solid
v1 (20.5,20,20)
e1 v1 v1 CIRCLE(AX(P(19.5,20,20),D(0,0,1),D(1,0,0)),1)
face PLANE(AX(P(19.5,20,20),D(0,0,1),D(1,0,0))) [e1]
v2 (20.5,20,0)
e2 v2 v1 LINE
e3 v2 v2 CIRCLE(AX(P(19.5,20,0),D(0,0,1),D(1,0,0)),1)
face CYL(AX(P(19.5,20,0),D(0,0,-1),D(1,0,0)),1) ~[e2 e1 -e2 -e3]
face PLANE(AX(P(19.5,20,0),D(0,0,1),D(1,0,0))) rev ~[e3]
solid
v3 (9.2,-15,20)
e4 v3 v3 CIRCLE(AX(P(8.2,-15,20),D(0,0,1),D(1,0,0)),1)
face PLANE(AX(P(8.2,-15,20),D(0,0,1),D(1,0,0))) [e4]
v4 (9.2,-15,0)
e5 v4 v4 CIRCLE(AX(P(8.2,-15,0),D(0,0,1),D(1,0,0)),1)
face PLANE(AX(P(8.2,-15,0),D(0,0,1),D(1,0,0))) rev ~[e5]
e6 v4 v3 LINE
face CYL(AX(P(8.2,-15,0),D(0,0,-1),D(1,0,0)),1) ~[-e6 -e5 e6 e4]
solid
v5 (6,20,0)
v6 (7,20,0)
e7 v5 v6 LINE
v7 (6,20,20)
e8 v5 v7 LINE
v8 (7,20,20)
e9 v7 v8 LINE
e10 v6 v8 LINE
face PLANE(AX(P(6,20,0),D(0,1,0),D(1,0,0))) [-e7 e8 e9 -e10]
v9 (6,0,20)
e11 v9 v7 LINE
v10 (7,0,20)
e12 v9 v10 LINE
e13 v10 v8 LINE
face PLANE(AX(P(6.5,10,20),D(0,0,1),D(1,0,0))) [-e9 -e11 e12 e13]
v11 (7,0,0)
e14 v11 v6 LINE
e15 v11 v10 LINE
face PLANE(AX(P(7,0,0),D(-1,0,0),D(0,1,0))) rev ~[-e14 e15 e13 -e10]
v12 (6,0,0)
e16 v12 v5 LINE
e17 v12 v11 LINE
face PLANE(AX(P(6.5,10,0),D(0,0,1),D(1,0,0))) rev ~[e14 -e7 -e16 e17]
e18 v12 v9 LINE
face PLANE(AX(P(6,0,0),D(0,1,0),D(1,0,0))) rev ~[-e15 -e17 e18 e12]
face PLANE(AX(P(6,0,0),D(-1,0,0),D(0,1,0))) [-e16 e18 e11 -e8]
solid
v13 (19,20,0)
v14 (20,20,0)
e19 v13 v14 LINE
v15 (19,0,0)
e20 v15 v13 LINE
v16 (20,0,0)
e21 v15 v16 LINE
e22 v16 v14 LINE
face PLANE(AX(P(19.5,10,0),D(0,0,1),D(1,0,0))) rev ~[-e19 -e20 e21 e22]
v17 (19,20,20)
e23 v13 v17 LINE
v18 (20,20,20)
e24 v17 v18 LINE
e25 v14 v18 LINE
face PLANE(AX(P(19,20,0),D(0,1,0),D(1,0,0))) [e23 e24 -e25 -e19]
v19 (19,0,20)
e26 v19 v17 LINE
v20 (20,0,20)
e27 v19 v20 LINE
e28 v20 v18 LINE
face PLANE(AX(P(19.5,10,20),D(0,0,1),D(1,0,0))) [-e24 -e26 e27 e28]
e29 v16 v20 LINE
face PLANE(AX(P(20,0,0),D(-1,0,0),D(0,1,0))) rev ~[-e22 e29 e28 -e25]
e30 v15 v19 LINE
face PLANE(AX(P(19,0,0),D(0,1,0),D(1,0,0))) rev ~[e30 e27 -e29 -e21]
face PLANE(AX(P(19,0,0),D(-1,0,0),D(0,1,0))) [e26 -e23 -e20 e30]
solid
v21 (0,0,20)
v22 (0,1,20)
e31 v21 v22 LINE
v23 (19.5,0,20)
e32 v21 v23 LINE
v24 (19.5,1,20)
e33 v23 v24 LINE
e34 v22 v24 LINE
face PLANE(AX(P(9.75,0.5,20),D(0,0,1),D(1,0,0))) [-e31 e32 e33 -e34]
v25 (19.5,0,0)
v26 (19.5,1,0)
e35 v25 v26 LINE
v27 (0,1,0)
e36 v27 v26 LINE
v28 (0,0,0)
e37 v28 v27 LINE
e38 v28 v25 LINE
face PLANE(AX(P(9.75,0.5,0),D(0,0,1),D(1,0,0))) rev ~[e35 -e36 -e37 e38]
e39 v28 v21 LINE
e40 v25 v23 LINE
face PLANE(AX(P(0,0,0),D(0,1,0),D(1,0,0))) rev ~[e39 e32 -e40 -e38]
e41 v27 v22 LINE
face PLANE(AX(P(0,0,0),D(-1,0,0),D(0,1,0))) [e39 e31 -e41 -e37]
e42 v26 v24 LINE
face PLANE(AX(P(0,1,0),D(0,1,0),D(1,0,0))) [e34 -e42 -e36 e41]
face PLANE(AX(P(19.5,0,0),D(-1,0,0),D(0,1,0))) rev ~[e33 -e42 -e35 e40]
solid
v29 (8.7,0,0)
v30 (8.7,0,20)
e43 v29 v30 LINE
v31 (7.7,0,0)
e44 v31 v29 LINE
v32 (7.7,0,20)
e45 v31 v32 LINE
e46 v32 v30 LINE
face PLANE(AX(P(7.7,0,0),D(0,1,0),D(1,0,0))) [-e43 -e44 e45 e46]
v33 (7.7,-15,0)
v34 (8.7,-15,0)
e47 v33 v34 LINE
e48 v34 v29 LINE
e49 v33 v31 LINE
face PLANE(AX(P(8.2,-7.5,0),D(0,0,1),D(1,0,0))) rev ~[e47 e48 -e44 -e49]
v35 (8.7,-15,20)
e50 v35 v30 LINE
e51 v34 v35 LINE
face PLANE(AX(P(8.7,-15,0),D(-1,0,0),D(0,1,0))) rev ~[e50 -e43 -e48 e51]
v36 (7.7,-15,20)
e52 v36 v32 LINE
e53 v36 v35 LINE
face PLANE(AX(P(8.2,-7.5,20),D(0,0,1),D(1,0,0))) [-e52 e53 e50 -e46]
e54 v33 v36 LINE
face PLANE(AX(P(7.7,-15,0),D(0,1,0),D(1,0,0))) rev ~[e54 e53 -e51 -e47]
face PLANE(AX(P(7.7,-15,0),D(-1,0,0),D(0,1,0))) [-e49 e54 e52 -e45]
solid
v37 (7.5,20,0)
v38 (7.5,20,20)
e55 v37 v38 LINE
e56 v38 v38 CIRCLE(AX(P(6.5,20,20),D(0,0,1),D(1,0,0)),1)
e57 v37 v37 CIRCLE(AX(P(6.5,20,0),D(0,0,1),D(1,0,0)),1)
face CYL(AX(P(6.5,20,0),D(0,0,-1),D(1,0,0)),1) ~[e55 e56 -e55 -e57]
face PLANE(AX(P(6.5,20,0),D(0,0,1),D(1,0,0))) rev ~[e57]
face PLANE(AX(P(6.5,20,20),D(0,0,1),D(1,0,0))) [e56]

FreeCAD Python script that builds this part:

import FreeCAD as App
import Part
import Sketcher

doc = App.newDocument("Part")
params = doc.addObject("Spreadsheet::Sheet", "Params")
for row, (alias, value) in enumerate([
    ("sketch1_height", "1 mm"),
    ("sketch1_width", "19.5 mm"),
    ("pad1_length", "20 mm"),
    ("sketch2_width", "1 mm"),
    ("sketch2_height", "20 mm"),
    ("pad2_length", "20 mm"),
    ("sketch3_width", "1 mm"),
    ("sketch3_height", "20 mm"),
    ("pad3_length", "20 mm"),
    ("sketch4_diameter", "2 mm"),
    ("pad4_length", "20 mm"),
    ("sketch5_diameter", "2 mm"),
    ("pad5_length", "20 mm"),
    ("sketch6_width", "1 mm"),
    ("sketch6_height", "15 mm"),
    ("pad6_length", "20 mm"),
    ("sketch7_diameter", "2 mm"),
    ("pad7_length", "20 mm"),
], start=1):
    params.set(f"A{row}", alias)
    params.set(f"B{row}", "=" + value)
    params.setAlias(f"B{row}", alias)

body = doc.addObject("PartDesign::Body", "Body")

sketch1 = body.newObject("Sketcher::SketchObject", "Sketch")
sketch1.AttachmentSupport = (doc.getObject("XY_Plane"), [""])
sketch1.MapMode = "FlatFace"
sketch1.addGeometry(Part.LineSegment(App.Vector(0, 1, 0), App.Vector(0, 0, 0)), False)
sketch1.addGeometry(Part.LineSegment(App.Vector(0, 0, 0), App.Vector(19.5, 0, 0)), False)
sketch1.addGeometry(Part.LineSegment(App.Vector(19.5, 0, 0), App.Vector(19.5, 1, 0)), False)
sketch1.addGeometry(Part.LineSegment(App.Vector(19.5, 1, 0), App.Vector(0, 1, 0)), False)
sketch1.addConstraint(Sketcher.Constraint("Coincident", 0, 2, 1, 1))
sketch1.addConstraint(Sketcher.Constraint("Coincident", 1, 2, 2, 1))
sketch1.addConstraint(Sketcher.Constraint("Coincident", 2, 2, 3, 1))
sketch1.addConstraint(Sketcher.Constraint("Coincident", 3, 2, 0, 1))
sketch1.addConstraint(Sketcher.Constraint("Vertical", 0))
sketch1.addConstraint(Sketcher.Constraint("Horizontal", 1))
sketch1.addConstraint(Sketcher.Constraint("Vertical", 2))
sketch1.addConstraint(Sketcher.Constraint("Horizontal", 3))
sketch1.addConstraint(Sketcher.Constraint("Coincident", 0, 2, -1, 1))
sketch1.addConstraint(Sketcher.Constraint("DistanceY", 0, 2, 0, 1, 1.0))
sketch1.addConstraint(Sketcher.Constraint("DistanceX", 1, 1, 1, 2, 19.5))
sketch1.setExpression("Constraints[9]", "Params.sketch1_height")
sketch1.setExpression("Constraints[10]", "Params.sketch1_width")
pad1 = body.newObject("PartDesign::Pad", "Pad")
pad1.Profile = sketch1
pad1.setExpression("Length", "Params.pad1_length")
body2 = doc.addObject("PartDesign::Body", "Body001")

sketch2 = body2.newObject("Sketcher::SketchObject", "Sketch001")
sketch2.AttachmentSupport = (doc.getObject("XY_Plane001"), [""])
sketch2.MapMode = "FlatFace"
sketch2.addGeometry(Part.LineSegment(App.Vector(6, 20, 0), App.Vector(6, 0, 0)), False)
sketch2.addGeometry(Part.LineSegment(App.Vector(6, 0, 0), App.Vector(7, 0, 0)), False)
sketch2.addGeometry(Part.LineSegment(App.Vector(7, 0, 0), App.Vector(7, 20, 0)), False)
sketch2.addGeometry(Part.LineSegment(App.Vector(7, 20, 0), App.Vector(6, 20, 0)), False)
sketch2.addConstraint(Sketcher.Constraint("Coincident", 0, 2, 1, 1))
sketch2.addConstraint(Sketcher.Constraint("Coincident", 1, 2, 2, 1))
sketch2.addConstraint(Sketcher.Constraint("Coincident", 2, 2, 3, 1))
sketch2.addConstraint(Sketcher.Constraint("Coincident", 3, 2, 0, 1))
sketch2.addConstraint(Sketcher.Constraint("Vertical", 0))
sketch2.addConstraint(Sketcher.Constraint("Horizontal", 1))
sketch2.addConstraint(Sketcher.Constraint("Vertical", 2))
sketch2.addConstraint(Sketcher.Constraint("Horizontal", 3))
sketch2.addConstraint(Sketcher.Constraint("PointOnObject", 0, 2, -1))
sketch2.addConstraint(Sketcher.Constraint("DistanceX", 1, 1, 1, 2, 1.0))
sketch2.addConstraint(Sketcher.Constraint("DistanceY", 0, 2, 0, 1, 20.0))
sketch2.addConstraint(Sketcher.Constraint("DistanceX", -1, 1, 0, 2, 6.0))
sketch2.setExpression("Constraints[9]", "Params.sketch2_width")
sketch2.setExpression("Constraints[10]", "Params.sketch2_height")
pad2 = body2.newObject("PartDesign::Pad", "Pad001")
pad2.Profile = sketch2
pad2.setExpression("Length", "Params.pad2_length")
body3 = doc.addObject("PartDesign::Body", "Body002")

sketch3 = body3.newObject("Sketcher::SketchObject", "Sketch002")
sketch3.AttachmentSupport = (doc.getObject("XY_Plane002"), [""])
sketch3.MapMode = "FlatFace"
sketch3.addGeometry(Part.LineSegment(App.Vector(19, 20, 0), App.Vector(19, 0, 0)), False)
sketch3.addGeometry(Part.LineSegment(App.Vector(19, 0, 0), App.Vector(20, 0, 0)), False)
sketch3.addGeometry(Part.LineSegment(App.Vector(20, 0, 0), App.Vector(20, 20, 0)), False)
sketch3.addGeometry(Part.LineSegment(App.Vector(20, 20, 0), App.Vector(19, 20, 0)), False)
sketch3.addConstraint(Sketcher.Constraint("Coincident", 0, 2, 1, 1))
sketch3.addConstraint(Sketcher.Constraint("Coincident", 1, 2, 2, 1))
sketch3.addConstraint(Sketcher.Constraint("Coincident", 2, 2, 3, 1))
sketch3.addConstraint(Sketcher.Constraint("Coincident", 3, 2, 0, 1))
sketch3.addConstraint(Sketcher.Constraint("Vertical", 0))
sketch3.addConstraint(Sketcher.Constraint("Horizontal", 1))
sketch3.addConstraint(Sketcher.Constraint("Vertical", 2))
sketch3.addConstraint(Sketcher.Constraint("Horizontal", 3))
sketch3.addConstraint(Sketcher.Constraint("PointOnObject", 0, 2, -1))
sketch3.addConstraint(Sketcher.Constraint("DistanceX", 1, 1, 1, 2, 1.0))
sketch3.addConstraint(Sketcher.Constraint("DistanceY", 0, 2, 0, 1, 20.0))
sketch3.addConstraint(Sketcher.Constraint("DistanceX", -1, 1, 0, 2, 19.0))
sketch3.setExpression("Constraints[9]", "Params.sketch3_width")
sketch3.setExpression("Constraints[10]", "Params.sketch3_height")
pad3 = body3.newObject("PartDesign::Pad", "Pad002")
pad3.Profile = sketch3
pad3.setExpression("Length", "Params.pad3_length")
body4 = doc.addObject("PartDesign::Body", "Body003")

sketch4 = body4.newObject("Sketcher::SketchObject", "Sketch003")
sketch4.AttachmentSupport = (doc.getObject("XY_Plane003"), [""])
sketch4.MapMode = "FlatFace"
sketch4.addGeometry(Part.Circle(App.Vector(6.5, 20, 0), App.Vector(0, 0, 1), 1), False)
sketch4.addConstraint(Sketcher.Constraint("Diameter", 0, 2.0))
sketch4.addConstraint(Sketcher.Constraint("DistanceY", -1, 1, 0, 3, 20.0))
sketch4.addConstraint(Sketcher.Constraint("DistanceX", -1, 1, 0, 3, 6.5))
sketch4.setExpression("Constraints[0]", "Params.sketch4_diameter")
pad4 = body4.newObject("PartDesign::Pad", "Pad003")
pad4.Profile = sketch4
pad4.setExpression("Length", "Params.pad4_length")
body5 = doc.addObject("PartDesign::Body", "Body004")

sketch5 = body5.newObject("Sketcher::SketchObject", "Sketch004")
sketch5.AttachmentSupport = (doc.getObject("XY_Plane004"), [""])
sketch5.MapMode = "FlatFace"
sketch5.addGeometry(Part.Circle(App.Vector(19.5, 20, 0), App.Vector(0, 0, 1), 1), False)
sketch5.addConstraint(Sketcher.Constraint("Diameter", 0, 2.0))
sketch5.addConstraint(Sketcher.Constraint("DistanceY", -1, 1, 0, 3, 20.0))
sketch5.addConstraint(Sketcher.Constraint("DistanceX", -1, 1, 0, 3, 19.5))
sketch5.setExpression("Constraints[0]", "Params.sketch5_diameter")
pad5 = body5.newObject("PartDesign::Pad", "Pad004")
pad5.Profile = sketch5
pad5.setExpression("Length", "Params.pad5_length")
body6 = doc.addObject("PartDesign::Body", "Body005")

sketch6 = body6.newObject("Sketcher::SketchObject", "Sketch005")
sketch6.AttachmentSupport = (doc.getObject("XY_Plane005"), [""])
sketch6.MapMode = "FlatFace"
sketch6.addGeometry(Part.LineSegment(App.Vector(7.7, 0, 0), App.Vector(7.7, -15, 0)), False)
sketch6.addGeometry(Part.LineSegment(App.Vector(7.7, -15, 0), App.Vector(8.7, -15, 0)), False)
sketch6.addGeometry(Part.LineSegment(App.Vector(8.7, -15, 0), App.Vector(8.7, 0, 0)), False)
sketch6.addGeometry(Part.LineSegment(App.Vector(8.7, 0, 0), App.Vector(7.7, 0, 0)), False)
sketch6.addConstraint(Sketcher.Constraint("Coincident", 0, 2, 1, 1))
sketch6.addConstraint(Sketcher.Constraint("Coincident", 1, 2, 2, 1))
sketch6.addConstraint(Sketcher.Constraint("Coincident", 2, 2, 3, 1))
sketch6.addConstraint(Sketcher.Constraint("Coincident", 3, 2, 0, 1))
sketch6.addConstraint(Sketcher.Constraint("Vertical", 0))
sketch6.addConstraint(Sketcher.Constraint("Horizontal", 1))
sketch6.addConstraint(Sketcher.Constraint("Vertical", 2))
sketch6.addConstraint(Sketcher.Constraint("Horizontal", 3))
sketch6.addConstraint(Sketcher.Constraint("PointOnObject", 2, 2, -1))
sketch6.addConstraint(Sketcher.Constraint("DistanceX", 1, 1, 1, 2, 1.0))
sketch6.addConstraint(Sketcher.Constraint("DistanceY", 0, 2, 0, 1, 15.0))
sketch6.addConstraint(Sketcher.Constraint("DistanceX", -1, 1, 0, 2, 7.7))
sketch6.setExpression("Constraints[9]", "Params.sketch6_width")
sketch6.setExpression("Constraints[10]", "Params.sketch6_height")
pad6 = body6.newObject("PartDesign::Pad", "Pad005")
pad6.Profile = sketch6
pad6.setExpression("Length", "Params.pad6_length")
body7 = doc.addObject("PartDesign::Body", "Body006")

sketch7 = body7.newObject("Sketcher::SketchObject", "Sketch006")
sketch7.AttachmentSupport = (doc.getObject("XY_Plane006"), [""])
sketch7.MapMode = "FlatFace"
sketch7.addGeometry(Part.Circle(App.Vector(8.2, -15, 0), App.Vector(0, 0, 1), 1), False)
sketch7.addConstraint(Sketcher.Constraint("Diameter", 0, 2.0))
sketch7.addConstraint(Sketcher.Constraint("DistanceY", 0, 3, -1, 1, 15.0))
sketch7.addConstraint(Sketcher.Constraint("DistanceX", -1, 1, 0, 3, 8.2))
sketch7.setExpression("Constraints[0]", "Params.sketch7_diameter")
pad7 = body7.newObject("PartDesign::Pad", "Pad006")
pad7.Profile = sketch7
pad7.setExpression("Length", "Params.pad7_length")

doc.recompute()
